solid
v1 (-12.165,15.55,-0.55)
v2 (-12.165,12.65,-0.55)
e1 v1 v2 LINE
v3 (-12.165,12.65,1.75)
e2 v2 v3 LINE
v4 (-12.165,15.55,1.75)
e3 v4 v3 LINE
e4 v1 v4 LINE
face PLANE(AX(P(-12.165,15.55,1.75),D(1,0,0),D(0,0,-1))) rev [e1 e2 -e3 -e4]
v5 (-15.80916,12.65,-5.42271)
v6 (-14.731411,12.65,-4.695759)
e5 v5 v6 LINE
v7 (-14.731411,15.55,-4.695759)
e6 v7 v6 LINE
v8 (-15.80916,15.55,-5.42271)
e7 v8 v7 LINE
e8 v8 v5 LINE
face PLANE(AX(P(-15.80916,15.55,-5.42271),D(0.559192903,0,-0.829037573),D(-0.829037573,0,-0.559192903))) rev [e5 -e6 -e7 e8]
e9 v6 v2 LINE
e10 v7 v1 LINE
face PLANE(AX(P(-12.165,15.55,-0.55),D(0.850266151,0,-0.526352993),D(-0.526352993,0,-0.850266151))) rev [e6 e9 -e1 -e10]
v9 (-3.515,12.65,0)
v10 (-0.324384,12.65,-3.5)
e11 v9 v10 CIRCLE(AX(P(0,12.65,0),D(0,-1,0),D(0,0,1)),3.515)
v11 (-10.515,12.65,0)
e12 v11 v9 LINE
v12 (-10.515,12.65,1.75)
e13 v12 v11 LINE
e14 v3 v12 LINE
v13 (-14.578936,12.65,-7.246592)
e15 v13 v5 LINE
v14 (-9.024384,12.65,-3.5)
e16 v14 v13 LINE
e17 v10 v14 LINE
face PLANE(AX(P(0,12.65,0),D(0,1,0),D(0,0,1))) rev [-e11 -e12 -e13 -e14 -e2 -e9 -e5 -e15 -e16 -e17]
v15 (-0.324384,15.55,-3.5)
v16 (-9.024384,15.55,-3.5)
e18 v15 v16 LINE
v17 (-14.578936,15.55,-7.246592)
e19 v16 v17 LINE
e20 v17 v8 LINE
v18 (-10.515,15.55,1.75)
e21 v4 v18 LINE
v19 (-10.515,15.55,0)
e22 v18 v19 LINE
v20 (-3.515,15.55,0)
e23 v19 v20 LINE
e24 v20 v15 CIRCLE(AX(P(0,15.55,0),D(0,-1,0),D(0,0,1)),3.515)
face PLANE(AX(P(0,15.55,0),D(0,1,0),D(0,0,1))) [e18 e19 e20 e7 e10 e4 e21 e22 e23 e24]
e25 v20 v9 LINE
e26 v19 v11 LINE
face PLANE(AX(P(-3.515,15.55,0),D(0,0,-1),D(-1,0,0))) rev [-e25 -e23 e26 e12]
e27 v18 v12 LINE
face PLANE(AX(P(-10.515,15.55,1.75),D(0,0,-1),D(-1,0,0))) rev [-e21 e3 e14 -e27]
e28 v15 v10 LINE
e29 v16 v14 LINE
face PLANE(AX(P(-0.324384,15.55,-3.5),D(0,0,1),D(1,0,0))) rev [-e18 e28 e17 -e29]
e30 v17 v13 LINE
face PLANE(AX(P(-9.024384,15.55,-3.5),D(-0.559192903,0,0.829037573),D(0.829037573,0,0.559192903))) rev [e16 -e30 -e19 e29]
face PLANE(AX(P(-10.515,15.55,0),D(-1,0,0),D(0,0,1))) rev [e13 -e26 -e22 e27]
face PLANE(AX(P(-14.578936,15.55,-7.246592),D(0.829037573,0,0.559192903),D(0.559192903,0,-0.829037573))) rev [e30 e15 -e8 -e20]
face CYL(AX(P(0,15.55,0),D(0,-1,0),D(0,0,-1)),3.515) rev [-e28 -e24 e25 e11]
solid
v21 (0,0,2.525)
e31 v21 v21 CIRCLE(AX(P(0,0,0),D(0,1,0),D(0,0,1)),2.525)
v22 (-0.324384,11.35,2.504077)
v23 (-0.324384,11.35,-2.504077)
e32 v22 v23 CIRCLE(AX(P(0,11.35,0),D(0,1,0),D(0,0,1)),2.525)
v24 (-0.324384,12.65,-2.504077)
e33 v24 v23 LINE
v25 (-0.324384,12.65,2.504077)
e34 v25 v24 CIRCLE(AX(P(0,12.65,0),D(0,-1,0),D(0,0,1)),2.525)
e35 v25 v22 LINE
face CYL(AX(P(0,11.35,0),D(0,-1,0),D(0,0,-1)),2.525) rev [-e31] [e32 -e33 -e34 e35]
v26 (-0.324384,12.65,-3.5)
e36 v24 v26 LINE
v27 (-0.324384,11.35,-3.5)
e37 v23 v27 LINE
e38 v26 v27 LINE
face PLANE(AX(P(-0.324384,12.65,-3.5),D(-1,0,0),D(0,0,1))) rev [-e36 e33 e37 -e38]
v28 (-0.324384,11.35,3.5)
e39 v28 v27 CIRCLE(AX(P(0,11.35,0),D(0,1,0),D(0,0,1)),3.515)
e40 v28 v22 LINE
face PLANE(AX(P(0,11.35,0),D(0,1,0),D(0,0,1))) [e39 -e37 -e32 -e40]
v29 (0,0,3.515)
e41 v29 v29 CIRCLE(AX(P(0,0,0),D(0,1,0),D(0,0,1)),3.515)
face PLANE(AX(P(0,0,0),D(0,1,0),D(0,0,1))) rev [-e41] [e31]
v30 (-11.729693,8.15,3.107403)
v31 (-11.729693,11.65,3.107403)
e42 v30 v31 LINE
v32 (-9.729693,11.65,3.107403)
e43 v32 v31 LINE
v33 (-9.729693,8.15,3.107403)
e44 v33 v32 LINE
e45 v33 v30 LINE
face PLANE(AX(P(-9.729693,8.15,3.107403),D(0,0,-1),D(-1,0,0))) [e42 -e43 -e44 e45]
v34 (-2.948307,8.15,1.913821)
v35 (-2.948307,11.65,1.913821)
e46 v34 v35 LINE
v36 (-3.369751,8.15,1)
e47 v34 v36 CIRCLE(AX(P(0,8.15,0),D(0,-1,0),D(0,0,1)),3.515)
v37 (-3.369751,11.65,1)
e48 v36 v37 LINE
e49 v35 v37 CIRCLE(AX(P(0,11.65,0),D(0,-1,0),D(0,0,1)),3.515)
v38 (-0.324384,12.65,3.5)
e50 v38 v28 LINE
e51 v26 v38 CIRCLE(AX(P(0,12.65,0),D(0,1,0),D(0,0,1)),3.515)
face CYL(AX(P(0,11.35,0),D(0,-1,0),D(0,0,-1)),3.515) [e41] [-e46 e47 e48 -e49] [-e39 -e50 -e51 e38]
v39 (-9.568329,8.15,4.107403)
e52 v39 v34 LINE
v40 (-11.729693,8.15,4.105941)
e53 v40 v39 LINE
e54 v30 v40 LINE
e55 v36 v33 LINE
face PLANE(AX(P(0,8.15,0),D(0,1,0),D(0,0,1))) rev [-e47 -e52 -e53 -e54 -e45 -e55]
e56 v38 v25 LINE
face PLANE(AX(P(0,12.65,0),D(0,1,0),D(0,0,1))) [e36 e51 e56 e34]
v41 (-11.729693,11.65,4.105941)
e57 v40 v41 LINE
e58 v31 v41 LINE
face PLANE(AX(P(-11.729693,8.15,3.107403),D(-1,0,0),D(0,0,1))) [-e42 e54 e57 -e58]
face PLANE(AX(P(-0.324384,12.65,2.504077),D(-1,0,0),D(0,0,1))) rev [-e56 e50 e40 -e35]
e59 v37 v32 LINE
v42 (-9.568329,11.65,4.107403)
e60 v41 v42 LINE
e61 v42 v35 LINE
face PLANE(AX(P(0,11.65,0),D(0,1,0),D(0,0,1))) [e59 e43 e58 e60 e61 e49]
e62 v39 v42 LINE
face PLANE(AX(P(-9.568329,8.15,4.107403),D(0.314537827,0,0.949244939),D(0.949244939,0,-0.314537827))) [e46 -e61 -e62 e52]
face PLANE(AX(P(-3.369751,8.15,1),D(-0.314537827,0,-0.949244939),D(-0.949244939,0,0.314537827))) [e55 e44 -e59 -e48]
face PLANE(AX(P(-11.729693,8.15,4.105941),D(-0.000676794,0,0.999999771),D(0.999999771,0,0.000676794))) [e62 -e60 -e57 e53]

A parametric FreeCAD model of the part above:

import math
import FreeCAD as App
import Part
import Sketcher
from FreeCAD import Vector
Q = App.Units.Quantity

doc = App.newDocument("Part")
body = doc.addObject("PartDesign::Body", "Body")

# Sketch on XZ plane
sketch1 = body.newObject("Sketcher::SketchObject", "Sketch")
sketch1.AttachmentSupport = (doc.getObject("XZ_Plane"), [""])
sketch1.MapMode = "FlatFace"
sketch1.addGeometry([
    Part.Circle(Vector(0, 0, 0), Vector(0, 0, 1), 3.515),
    Part.Circle(Vector(0, 0, 0), Vector(0, 0, 1), 2.525),
], False)
sketch1.addConstraint([
    Sketcher.Constraint("Coincident", 0, 3, -1, 1),
    Sketcher.Constraint("Coincident", 1, 3, -1, 1),
    Sketcher.Constraint("Diameter", 0, Q("7.03 mm")),
    Sketcher.Constraint("Diameter", 1, Q("5.05 mm")),
])
pad1 = body.newObject("PartDesign::Pad", "Pad")
pad1.Profile = sketch1
pad1.Length = 11.35
pad1.Reversed = True

# Sketch on XZ plane
sketch2 = body.newObject("Sketcher::SketchObject", "Sketch001")
sketch2.AttachmentSupport = (doc.getObject("XZ_Plane"), [""])
sketch2.MapMode = "FlatFace"
sketch2.AttachmentOffset = App.Placement(Vector(0, 0, -11.35), App.Rotation())
sketch2.addGeometry([
    Part.LineSegment(Vector(-0.324384, -2.504077, 0), Vector(-0.324384, -3.5, 0)),
    Part.ArcOfCircle(Part.Circle(Vector(0, 0, 0), Vector(0, 0, 1), 3.515), math.radians(95.295112), math.radians(264.704888)),
    Part.LineSegment(Vector(-0.324384, 3.5, 0), Vector(-0.324384, 2.504077, 0)),
    Part.ArcOfCircle(Part.Circle(Vector(0, 0, 0), Vector(0, 0, 1), 2.525), math.radians(97.381126), math.radians(262.618874)),
], False)
sketch2.addConstraint([
    Sketcher.Constraint("Coincident", 0, 2, 1, 2),
    Sketcher.Constraint("Coincident", 1, 1, 2, 1),
    Sketcher.Constraint("Coincident", 2, 2, 3, 1),
    Sketcher.Constraint("Coincident", 3, 2, 0, 1),
    Sketcher.Constraint("Vertical", 0),
    Sketcher.Constraint("Vertical", 2),
    Sketcher.Constraint("Coincident", 1, 3, -1, 1),
    Sketcher.Constraint("Coincident", 3, 3, -1, 1),
    Sketcher.Constraint("Vertical", 0, 2, 1, 1),
    Sketcher.Constraint("Radius", 1, Q("3.515 mm")),
    Sketcher.Constraint("Radius", 3, Q("2.525 mm")),
    Sketcher.Constraint("DistanceY", 0, 2, 1, 1, Q("7 mm")),
])
pad2 = body.newObject("PartDesign::Pad", "Pad001")
pad2.Profile = sketch2
pad2.Length = 1.3
pad2.Reversed = True

# Sketch on XZ plane
sketch3 = body.newObject("Sketcher::SketchObject", "Sketch002")
sketch3.AttachmentSupport = (doc.getObject("XZ_Plane"), [""])
sketch3.MapMode = "FlatFace"
sketch3.AttachmentOffset = App.Placement(Vector(0, 0, -11.65), App.Rotation())
sketch3.addGeometry([
    Part.LineSegment(Vector(-3.369751, 1, 0), Vector(-9.729693, 3.107403, 0)),  # 0
    Part.LineSegment(Vector(-9.729693, 3.107403, 0), Vector(-11.729693, 3.107403, 0)),  # 1
    Part.LineSegment(Vector(-11.729693, 3.107403, 0), Vector(-11.729693, 4.105941, 0)),  # 2
    Part.LineSegment(Vector(-11.729693, 4.105941, 0), Vector(-9.568329, 4.107403, 0)),  # 3
    Part.LineSegment(Vector(-9.568329, 4.107403, 0), Vector(-2.948307, 1.913821, 0)),  # 4
    Part.ArcOfCircle(Part.Circle(Vector(0, 0, 0), Vector(0, 0, 1), 3.515), math.radians(147.011377), math.radians(163.471334)),  # 5
], False)
sketch3.addConstraint([
    Sketcher.Constraint("Coincident", 0, 2, 1, 1),
    Sketcher.Constraint("Coincident", 1, 2, 2, 1),
    Sketcher.Constraint("Coincident", 2, 2, 3, 1),
    Sketcher.Constraint("Coincident", 3, 2, 4, 1),
    Sketcher.Constraint("Coincident", 4, 2, 5, 1),
    Sketcher.Constraint("Coincident", 5, 2, 0, 1),
    Sketcher.Constraint("Horizontal", 1),
    Sketcher.Constraint("Vertical", 2),
    Sketcher.Constraint("Coincident", 5, 3, -1, 1),
    Sketcher.Constraint("Parallel", 0, 4),
    Sketcher.Constraint("DistanceX", 1, 2, 1, 1, Q("2 mm")),
    Sketcher.Constraint("DistanceY", -1, 1, 5, 2, Q("1 mm")),
    Sketcher.Constraint("Radius", 5, Q("3.515 mm")),
    Sketcher.Constraint("DistanceY", 0, 2, 3, 2, Q("1 mm")),
    Sketcher.Constraint("Distance", 0, Q("6.7 mm")),
    Sketcher.Constraint("DistanceY", 2, 1, 2, 2, Q("0.998537 mm")),
    Sketcher.Constraint("DistanceY", -1, 1, 2, 2, Q("4.105941 mm")),
    Sketcher.Constraint("DistanceX", 3, 2, -1, 1, Q("9.568329 mm")),
])
pad3 = body.newObject("PartDesign::Pad", "Pad002")
pad3.Profile = sketch3
pad3.Length = 3.5
body2 = doc.addObject("PartDesign::Body", "Body001")

# Sketch on XZ plane
sketch4 = body2.newObject("Sketcher::SketchObject", "Sketch003")
sketch4.AttachmentSupport = (doc.getObject("XZ_Plane001"), [""])
sketch4.MapMode = "FlatFace"
sketch4.AttachmentOffset = App.Placement(Vector(0, 0, -12.65), App.Rotation())
sketch4.addGeometry([
    Part.LineSegment(Vector(-0.324384, -3.5, 0), Vector(-9.024384, -3.5, 0)),  # 0
    Part.LineSegment(Vector(-9.024384, -3.5, 0), Vector(-14.578936, -7.246592, 0)),  # 1
    Part.LineSegment(Vector(-14.578936, -7.246592, 0), Vector(-15.80916, -5.42271, 0)),  # 2
    Part.LineSegment(Vector(-15.80916, -5.42271, 0), Vector(-14.731411, -4.695759, 0)),  # 3
    Part.LineSegment(Vector(-14.731411, -4.695759, 0), Vector(-12.165, -0.55, 0)),  # 4
    Part.LineSegment(Vector(-12.165, -0.55, 0), Vector(-12.165, 1.75, 0)),  # 5
    Part.LineSegment(Vector(-12.165, 1.75, 0), Vector(-10.515, 1.75, 0)),  # 6
    Part.LineSegment(Vector(-10.515, 1.75, 0), Vector(-10.515, 0, 0)),  # 7
    Part.LineSegment(Vector(-10.515, 0, 0), Vector(-3.515, 0, 0)),  # 8
    Part.ArcOfCircle(Part.Circle(Vector(0, 0, 0), Vector(0, 0, 1), 3.515), math.radians(-180), math.radians(-95.295112)),  # 9
], False)
sketch4.addConstraint([
    Sketcher.Constraint("Coincident", 0, 2, 1, 1),
    Sketcher.Constraint("Coincident", 1, 2, 2, 1),
    Sketcher.Constraint("Coincident", 2, 2, 3, 1),
    Sketcher.Constraint("Coincident", 3, 2, 4, 1),
    Sketcher.Constraint("Coincident", 4, 2, 5, 1),
    Sketcher.Constraint("Coincident", 5, 2, 6, 1),
    Sketcher.Constraint("Coincident", 6, 2, 7, 1),
    Sketcher.Constraint("Coincident", 7, 2, 8, 1),
    Sketcher.Constraint("Coincident", 8, 2, 9, 1),
    Sketcher.Constraint("Coincident", 9, 2, 0, 1),
    Sketcher.Constraint("Horizontal", 0),
    Sketcher.Constraint("Vertical", 5),
    Sketcher.Constraint("Horizontal", 6),
    Sketcher.Constraint("Vertical", 7),
    Sketcher.Constraint("Horizontal", 8),
    Sketcher.Constraint("Coincident", 9, 3, -1, 1),
    Sketcher.Constraint("PointOnObject", 7, 2, -1),
    Sketcher.Constraint("Perpendicular", 1, 2),
    Sketcher.Constraint("Perpendicular", 2, 3),
    Sketcher.Constraint("DistanceX", 8, 1, 8, 2, Q("7 mm")),
    Sketcher.Constraint("Angle", 1, Q("-146 deg")),
    Sketcher.Constraint("DistanceX", 0, 2, 0, 1, Q("8.7 mm")),
    Sketcher.Constraint("DistanceY", 5, 1, 5, 2, Q("2.3 mm")),
    Sketcher.Constraint("Radius", 9, Q("3.515 mm")),
    Sketcher.Constraint("Distance", 1, Q("6.7 mm")),
    Sketcher.Constraint("Distance", 2, Q("2.2 mm")),
    Sketcher.Constraint("Distance", 3, Q("1.3 mm")),
    Sketcher.Constraint("DistanceX", 6, 1, 6, 2, Q("1.65 mm")),
    Sketcher.Constraint("DistanceY", 7, 2, 7, 1, Q("1.75 mm")),
    Sketcher.Constraint("DistanceY", 0, 2, -1, 1, Q("3.5 mm")),
])
pad4 = body2.newObject("PartDesign::Pad", "Pad003")
pad4.Profile = sketch4
pad4.Length = 2.9
pad4.Reversed = True

doc.recompute()
